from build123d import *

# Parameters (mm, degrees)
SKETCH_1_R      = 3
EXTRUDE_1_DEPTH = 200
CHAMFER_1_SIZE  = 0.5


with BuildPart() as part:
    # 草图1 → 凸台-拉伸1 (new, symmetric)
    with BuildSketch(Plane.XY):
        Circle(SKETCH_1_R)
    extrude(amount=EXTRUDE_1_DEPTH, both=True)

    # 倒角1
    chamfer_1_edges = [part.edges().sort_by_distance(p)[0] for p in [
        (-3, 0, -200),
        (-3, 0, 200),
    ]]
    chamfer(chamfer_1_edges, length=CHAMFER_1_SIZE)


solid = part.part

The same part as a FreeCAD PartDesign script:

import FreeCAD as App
import Part
import Sketcher
from FreeCAD import Vector


def edges_at(feature, points):
    """Names of the edges that pass closest to the given points."""
    edges = feature.Shape.Edges
    near = lambda p: min(range(len(edges)), key=lambda i: edges[i].distToShape(Part.Vertex(*p))[0])
    return sorted({f"Edge{near(p) + 1}" for p in points})

doc = App.newDocument("Part")
params = doc.addObject("Spreadsheet::Sheet", "Params")
for row, (alias, value) in enumerate([
    ("sketch1_diameter", "6 mm"),
    ("pad1_length", "400 mm"),
    ("chamfer_size", "0.5 mm"),
], start=1):
    params.set(f"A{row}", alias)
    params.set(f"B{row}", "=" + value)
    params.setAlias(f"B{row}", alias)

body = doc.addObject("PartDesign::Body", "Body")

sketch1 = body.newObject("Sketcher::SketchObject", "Sketch")
sketch1.AttachmentSupport = (doc.getObject("XY_Plane"), [""])
sketch1.MapMode = "FlatFace"
sketch1.addGeometry(Part.Circle(Vector(0, 0, 0), Vector(0, 0, 1), 3), False)
sketch1.addConstraint(Sketcher.Constraint("Coincident", 0, 3, -1, 1))
sketch1.addConstraint(Sketcher.Constraint("Diameter", 0, 6.0))
sketch1.setExpression("Constraints[1]", "Params.sketch1_diameter")
pad1 = body.newObject("PartDesign::Pad", "Pad")
pad1.Profile = sketch1
pad1.setExpression("Length", "Params.pad1_length")
pad1.Midplane = True
doc.recompute()

chamfer = body.newObject("PartDesign::Chamfer", "Chamfer")
chamfer.Base = (pad1, edges_at(pad1, [(-3, 0, -200), (-3, 0, 200)]))
chamfer.setExpression("Size", "Params.chamfer_size")

doc.recompute()
